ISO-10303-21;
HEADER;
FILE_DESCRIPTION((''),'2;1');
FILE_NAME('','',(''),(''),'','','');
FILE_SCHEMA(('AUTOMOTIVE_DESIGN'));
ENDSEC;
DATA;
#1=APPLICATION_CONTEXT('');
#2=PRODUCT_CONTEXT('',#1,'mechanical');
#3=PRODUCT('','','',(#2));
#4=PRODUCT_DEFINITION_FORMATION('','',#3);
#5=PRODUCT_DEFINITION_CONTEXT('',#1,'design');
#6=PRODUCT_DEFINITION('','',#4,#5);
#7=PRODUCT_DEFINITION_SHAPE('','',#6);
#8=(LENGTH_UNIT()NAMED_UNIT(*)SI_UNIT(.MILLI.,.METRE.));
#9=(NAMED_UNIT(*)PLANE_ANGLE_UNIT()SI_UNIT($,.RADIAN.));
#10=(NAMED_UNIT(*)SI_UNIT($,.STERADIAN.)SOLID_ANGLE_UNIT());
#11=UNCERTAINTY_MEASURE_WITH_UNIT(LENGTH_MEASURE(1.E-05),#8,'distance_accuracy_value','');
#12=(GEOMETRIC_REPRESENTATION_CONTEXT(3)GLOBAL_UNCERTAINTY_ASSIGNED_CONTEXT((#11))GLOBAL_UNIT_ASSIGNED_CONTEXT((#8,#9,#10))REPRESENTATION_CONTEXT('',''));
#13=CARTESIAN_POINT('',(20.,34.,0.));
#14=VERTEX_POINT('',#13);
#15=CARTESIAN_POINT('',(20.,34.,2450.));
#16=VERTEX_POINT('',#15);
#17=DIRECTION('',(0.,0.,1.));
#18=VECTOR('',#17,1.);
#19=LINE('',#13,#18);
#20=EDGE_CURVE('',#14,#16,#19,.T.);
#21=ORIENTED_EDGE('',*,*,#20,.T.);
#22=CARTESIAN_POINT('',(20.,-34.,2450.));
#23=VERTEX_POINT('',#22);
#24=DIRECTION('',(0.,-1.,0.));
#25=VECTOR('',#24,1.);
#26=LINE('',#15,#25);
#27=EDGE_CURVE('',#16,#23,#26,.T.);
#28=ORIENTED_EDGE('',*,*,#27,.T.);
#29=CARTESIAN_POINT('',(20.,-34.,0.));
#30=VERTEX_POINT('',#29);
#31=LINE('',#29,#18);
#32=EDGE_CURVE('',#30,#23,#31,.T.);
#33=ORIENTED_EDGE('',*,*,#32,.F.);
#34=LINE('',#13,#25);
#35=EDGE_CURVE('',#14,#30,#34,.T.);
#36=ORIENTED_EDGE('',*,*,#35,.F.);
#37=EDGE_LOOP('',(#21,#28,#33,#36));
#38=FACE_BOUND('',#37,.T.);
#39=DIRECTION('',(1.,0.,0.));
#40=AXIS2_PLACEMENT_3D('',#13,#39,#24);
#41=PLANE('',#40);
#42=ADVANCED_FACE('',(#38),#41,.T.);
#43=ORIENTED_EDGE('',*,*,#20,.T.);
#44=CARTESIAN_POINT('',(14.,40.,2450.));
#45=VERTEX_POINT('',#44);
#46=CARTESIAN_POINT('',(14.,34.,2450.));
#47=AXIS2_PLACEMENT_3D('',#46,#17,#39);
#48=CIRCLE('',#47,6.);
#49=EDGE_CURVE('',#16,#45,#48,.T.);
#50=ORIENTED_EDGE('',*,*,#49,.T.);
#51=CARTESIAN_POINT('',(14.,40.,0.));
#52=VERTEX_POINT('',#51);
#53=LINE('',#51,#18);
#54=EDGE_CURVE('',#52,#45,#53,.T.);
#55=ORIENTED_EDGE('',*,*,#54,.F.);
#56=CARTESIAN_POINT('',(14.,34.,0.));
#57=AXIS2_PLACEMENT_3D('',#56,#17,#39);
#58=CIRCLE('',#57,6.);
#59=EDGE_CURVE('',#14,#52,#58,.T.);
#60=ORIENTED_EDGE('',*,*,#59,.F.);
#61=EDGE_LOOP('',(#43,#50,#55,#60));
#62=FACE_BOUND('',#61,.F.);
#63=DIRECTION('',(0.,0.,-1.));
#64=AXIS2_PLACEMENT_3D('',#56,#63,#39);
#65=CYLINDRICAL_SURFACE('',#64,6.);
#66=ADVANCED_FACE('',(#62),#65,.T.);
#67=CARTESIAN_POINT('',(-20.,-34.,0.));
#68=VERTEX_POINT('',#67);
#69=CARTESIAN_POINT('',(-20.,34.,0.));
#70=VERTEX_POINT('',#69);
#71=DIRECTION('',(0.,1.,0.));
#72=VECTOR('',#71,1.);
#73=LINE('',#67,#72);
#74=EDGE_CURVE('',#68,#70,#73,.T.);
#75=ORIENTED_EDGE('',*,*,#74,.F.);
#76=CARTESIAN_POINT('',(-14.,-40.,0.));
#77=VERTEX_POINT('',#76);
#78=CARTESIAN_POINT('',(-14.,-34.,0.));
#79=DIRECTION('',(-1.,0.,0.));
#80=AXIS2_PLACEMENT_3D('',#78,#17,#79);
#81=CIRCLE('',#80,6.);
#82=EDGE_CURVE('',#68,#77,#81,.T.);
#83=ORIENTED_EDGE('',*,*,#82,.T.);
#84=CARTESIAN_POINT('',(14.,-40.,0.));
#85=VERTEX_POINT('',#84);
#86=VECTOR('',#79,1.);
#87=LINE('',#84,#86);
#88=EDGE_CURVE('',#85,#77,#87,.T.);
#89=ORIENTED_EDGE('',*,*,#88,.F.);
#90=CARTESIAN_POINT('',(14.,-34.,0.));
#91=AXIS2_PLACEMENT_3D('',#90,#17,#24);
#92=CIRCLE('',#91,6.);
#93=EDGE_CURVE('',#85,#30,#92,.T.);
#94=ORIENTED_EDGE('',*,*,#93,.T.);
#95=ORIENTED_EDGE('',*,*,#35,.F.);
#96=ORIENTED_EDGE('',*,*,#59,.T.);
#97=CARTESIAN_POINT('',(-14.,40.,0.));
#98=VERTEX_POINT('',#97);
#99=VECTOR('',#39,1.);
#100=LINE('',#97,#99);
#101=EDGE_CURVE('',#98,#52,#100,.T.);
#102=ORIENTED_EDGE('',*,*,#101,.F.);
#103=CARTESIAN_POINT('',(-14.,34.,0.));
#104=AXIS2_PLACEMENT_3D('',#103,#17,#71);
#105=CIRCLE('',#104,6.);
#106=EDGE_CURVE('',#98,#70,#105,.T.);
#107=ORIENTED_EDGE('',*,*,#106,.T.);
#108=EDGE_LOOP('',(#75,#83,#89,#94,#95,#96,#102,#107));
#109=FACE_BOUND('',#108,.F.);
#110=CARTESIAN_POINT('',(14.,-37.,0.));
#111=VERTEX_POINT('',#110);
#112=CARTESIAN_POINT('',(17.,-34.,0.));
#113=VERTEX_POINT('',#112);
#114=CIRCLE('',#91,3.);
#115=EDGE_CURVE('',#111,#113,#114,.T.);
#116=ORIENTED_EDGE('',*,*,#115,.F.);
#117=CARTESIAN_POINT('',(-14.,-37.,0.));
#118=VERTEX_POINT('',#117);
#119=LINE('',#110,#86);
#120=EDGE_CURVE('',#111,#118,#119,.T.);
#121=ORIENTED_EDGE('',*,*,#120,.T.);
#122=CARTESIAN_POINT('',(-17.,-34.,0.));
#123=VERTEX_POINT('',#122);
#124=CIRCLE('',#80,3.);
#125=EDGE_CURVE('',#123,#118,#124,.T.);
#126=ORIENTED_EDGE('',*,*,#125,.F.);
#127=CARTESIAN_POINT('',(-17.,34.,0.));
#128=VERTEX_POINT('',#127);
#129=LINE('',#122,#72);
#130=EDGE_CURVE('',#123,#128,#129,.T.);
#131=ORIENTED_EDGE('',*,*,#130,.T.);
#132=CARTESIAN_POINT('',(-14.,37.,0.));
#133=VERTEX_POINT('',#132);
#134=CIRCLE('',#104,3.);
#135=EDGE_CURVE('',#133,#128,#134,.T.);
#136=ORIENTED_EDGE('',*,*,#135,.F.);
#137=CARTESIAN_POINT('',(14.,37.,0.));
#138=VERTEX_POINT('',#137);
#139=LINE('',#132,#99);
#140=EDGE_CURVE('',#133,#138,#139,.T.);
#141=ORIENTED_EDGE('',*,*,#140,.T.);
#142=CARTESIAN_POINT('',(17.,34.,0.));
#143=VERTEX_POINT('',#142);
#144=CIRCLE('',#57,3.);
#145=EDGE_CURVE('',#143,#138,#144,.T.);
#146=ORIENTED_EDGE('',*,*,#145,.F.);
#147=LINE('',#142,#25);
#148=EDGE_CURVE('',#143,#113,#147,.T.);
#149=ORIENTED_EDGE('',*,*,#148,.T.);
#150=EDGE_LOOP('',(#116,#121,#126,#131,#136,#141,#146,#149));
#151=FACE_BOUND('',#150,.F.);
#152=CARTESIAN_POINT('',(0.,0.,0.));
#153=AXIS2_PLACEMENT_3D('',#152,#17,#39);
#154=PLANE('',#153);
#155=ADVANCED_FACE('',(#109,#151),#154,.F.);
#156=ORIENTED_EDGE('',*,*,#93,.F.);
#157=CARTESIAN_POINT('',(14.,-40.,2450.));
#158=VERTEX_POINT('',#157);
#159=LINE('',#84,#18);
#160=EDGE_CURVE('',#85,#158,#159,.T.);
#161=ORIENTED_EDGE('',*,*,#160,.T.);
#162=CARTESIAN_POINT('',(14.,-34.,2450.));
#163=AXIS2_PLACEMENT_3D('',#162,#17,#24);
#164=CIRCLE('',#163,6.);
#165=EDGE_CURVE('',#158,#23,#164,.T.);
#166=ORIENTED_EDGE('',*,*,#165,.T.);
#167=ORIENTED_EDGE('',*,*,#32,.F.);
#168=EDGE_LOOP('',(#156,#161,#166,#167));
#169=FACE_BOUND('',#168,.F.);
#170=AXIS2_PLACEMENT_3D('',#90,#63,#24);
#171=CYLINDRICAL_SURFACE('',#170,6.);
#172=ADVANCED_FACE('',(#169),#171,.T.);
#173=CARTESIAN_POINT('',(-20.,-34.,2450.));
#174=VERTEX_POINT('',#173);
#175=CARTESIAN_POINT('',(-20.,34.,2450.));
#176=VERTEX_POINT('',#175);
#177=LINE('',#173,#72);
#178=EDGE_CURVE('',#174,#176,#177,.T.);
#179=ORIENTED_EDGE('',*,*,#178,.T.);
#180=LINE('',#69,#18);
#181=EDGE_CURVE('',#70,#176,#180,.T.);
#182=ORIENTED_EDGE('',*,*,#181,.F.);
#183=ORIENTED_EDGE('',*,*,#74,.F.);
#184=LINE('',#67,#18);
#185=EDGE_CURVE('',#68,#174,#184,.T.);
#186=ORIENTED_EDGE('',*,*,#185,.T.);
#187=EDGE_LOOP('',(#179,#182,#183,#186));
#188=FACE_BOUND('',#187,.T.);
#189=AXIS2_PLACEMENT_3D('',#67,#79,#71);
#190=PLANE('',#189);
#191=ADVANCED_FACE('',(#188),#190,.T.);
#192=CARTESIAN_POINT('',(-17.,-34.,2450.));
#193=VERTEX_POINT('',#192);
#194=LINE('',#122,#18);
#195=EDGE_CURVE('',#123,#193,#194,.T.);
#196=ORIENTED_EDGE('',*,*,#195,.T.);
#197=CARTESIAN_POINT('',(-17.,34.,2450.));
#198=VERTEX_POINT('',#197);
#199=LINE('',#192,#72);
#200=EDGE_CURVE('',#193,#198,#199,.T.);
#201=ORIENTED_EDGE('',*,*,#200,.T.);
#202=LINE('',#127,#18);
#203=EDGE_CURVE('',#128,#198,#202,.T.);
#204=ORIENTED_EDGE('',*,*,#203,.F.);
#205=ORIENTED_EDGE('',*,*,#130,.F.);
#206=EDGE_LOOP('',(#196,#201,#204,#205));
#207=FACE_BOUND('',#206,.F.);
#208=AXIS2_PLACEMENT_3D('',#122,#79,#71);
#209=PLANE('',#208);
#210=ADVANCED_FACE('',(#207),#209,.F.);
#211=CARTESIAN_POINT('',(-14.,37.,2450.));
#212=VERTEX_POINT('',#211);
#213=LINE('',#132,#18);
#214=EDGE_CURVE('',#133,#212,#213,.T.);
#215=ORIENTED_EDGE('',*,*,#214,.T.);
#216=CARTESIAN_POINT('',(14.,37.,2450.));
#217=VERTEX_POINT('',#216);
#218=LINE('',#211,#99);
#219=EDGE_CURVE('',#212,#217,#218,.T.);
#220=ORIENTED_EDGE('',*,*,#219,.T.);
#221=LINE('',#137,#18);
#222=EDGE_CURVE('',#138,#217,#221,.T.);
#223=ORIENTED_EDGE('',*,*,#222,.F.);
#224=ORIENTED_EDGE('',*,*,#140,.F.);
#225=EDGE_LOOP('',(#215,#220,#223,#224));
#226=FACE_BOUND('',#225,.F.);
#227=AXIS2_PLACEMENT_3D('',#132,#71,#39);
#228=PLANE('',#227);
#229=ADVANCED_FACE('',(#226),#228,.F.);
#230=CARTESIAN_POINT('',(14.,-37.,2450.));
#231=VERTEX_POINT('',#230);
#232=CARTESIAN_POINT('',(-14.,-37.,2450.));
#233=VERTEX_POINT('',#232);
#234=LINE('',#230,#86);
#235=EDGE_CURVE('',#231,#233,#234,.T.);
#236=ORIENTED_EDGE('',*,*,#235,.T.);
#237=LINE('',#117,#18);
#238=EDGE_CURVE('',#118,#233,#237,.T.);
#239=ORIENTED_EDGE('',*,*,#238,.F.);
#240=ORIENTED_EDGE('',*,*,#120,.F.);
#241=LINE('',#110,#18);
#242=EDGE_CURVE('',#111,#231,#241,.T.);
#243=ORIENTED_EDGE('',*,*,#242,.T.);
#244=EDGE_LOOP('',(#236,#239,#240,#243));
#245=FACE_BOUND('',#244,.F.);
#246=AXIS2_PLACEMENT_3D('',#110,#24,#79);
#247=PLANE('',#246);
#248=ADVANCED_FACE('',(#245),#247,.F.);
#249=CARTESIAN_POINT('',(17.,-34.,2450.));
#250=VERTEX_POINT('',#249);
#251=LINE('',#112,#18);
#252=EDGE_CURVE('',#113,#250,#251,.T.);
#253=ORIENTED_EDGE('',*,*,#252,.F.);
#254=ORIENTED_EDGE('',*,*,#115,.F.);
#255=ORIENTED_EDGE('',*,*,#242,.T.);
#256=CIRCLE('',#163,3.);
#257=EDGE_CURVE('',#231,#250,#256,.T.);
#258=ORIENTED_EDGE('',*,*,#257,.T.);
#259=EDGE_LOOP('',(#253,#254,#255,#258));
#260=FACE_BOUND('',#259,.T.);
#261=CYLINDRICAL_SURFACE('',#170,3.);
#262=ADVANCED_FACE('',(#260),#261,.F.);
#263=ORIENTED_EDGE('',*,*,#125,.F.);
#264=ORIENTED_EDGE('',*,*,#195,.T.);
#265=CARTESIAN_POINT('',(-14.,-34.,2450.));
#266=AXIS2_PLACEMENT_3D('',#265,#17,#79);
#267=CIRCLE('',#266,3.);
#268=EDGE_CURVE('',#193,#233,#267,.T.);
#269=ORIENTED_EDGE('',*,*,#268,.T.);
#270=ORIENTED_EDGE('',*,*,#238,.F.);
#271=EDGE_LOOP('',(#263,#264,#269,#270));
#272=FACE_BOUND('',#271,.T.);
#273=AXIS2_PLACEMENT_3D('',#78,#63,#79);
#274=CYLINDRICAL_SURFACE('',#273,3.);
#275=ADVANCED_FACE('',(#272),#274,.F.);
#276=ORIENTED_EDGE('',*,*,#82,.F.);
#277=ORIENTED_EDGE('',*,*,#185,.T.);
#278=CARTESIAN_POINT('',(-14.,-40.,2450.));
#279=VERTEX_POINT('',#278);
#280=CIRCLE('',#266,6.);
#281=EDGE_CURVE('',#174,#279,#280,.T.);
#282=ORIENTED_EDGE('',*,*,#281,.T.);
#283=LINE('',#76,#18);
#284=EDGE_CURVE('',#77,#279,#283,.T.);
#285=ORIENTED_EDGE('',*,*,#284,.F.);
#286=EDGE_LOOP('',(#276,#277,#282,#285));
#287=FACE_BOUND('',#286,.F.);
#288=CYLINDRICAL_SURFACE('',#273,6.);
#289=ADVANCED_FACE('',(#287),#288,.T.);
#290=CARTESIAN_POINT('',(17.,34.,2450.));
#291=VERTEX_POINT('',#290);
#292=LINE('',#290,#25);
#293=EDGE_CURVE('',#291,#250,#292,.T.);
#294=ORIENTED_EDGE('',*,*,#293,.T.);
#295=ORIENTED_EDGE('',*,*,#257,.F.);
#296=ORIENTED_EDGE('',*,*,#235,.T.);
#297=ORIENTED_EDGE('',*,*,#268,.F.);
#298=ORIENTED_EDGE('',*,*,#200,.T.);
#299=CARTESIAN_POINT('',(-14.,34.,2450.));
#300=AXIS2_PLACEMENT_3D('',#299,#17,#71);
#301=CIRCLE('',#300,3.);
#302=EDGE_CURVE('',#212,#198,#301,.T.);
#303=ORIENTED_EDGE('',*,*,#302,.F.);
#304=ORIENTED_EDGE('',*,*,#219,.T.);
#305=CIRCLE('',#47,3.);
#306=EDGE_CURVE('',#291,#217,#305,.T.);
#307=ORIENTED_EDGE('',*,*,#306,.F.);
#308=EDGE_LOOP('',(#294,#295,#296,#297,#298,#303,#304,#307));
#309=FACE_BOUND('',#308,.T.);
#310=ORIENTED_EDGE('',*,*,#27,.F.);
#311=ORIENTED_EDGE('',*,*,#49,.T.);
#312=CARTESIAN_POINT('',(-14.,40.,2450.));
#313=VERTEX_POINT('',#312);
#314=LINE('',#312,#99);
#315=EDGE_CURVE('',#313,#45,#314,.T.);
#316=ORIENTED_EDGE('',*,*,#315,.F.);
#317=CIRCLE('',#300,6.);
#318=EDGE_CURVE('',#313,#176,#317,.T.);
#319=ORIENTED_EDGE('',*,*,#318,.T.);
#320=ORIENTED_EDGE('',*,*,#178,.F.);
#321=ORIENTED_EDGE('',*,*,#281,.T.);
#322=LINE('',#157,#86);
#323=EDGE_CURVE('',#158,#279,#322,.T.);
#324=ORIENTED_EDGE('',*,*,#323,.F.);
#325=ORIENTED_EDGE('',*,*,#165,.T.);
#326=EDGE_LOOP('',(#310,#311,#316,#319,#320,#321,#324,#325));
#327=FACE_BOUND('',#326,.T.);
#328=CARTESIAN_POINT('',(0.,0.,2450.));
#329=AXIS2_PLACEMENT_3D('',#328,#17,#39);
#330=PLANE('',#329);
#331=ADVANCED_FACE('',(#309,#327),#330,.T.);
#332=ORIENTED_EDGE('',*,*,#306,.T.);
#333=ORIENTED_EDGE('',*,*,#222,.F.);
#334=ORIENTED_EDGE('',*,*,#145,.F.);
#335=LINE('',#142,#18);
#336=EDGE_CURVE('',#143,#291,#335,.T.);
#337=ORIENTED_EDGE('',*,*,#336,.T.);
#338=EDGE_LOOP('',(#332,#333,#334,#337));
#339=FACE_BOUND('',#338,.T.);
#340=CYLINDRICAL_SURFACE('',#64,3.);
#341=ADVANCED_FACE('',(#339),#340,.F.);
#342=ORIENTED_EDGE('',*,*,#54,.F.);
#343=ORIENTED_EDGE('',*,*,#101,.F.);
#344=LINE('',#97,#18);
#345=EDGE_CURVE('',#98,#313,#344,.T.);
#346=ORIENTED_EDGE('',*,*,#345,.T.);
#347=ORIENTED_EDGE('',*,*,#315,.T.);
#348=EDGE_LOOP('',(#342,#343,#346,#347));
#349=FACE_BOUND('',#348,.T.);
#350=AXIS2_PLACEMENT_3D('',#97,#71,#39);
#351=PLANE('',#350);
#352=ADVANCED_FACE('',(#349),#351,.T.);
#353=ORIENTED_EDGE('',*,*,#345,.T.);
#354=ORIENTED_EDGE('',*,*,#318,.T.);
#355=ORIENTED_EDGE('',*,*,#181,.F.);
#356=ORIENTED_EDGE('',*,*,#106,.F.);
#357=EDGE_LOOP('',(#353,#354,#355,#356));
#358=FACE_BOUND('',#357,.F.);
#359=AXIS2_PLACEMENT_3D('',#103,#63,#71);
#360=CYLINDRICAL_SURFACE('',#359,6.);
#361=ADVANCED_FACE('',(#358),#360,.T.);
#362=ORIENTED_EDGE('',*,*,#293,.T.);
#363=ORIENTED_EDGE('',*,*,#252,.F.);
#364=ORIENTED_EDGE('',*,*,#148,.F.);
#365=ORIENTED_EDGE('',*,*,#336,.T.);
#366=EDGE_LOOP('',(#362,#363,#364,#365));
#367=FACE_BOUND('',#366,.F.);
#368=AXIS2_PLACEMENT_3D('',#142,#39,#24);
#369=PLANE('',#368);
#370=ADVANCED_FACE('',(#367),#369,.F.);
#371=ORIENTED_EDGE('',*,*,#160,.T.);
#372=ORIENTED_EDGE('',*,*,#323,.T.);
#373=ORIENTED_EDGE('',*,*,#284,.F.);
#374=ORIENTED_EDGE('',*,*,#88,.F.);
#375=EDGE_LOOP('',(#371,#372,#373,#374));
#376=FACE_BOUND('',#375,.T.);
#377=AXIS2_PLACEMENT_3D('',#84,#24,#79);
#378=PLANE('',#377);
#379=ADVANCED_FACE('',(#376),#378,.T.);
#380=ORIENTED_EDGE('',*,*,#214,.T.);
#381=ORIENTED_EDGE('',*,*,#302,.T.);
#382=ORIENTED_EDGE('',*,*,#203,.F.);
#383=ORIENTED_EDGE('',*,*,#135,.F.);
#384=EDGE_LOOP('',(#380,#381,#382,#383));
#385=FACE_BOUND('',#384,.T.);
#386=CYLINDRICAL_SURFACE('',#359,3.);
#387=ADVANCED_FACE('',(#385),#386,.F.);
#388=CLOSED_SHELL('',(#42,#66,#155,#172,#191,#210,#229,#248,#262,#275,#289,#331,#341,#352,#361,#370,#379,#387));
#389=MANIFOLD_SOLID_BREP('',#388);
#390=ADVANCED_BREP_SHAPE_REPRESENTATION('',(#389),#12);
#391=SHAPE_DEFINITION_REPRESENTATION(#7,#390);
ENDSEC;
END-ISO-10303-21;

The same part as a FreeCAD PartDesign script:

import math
import FreeCAD as App
import Part
import Sketcher
from FreeCAD import Vector

doc = App.newDocument("Part")
body = doc.addObject("PartDesign::Body", "Body")

# Sketch on XY plane
sketch1 = body.newObject("Sketcher::SketchObject", "Sketch")
sketch1.AttachmentSupport = (doc.getObject("XY_Plane"), [""])
sketch1.MapMode = "FlatFace"
sketch1.addGeometry([
    Part.LineSegment(Vector(-20, 34, 0), Vector(-20, -34, 0)),  # 0
    Part.ArcOfCircle(Part.Circle(Vector(-14, -34, 0), Vector(0, 0, 1), 6), math.radians(180), math.radians(270)),  # 1
    Part.LineSegment(Vector(-14, -40, 0), Vector(14, -40, 0)),  # 2
    Part.ArcOfCircle(Part.Circle(Vector(14, -34, 0), Vector(0, 0, 1), 6), math.radians(-90), math.radians(0)),  # 3
    Part.LineSegment(Vector(20, -34, 0), Vector(20, 34, 0)),  # 4
    Part.ArcOfCircle(Part.Circle(Vector(14, 34, 0), Vector(0, 0, 1), 6), math.radians(0), math.radians(90)),  # 5
    Part.LineSegment(Vector(14, 40, 0), Vector(-14, 40, 0)),  # 6
    Part.ArcOfCircle(Part.Circle(Vector(-14, 34, 0), Vector(0, 0, 1), 6), math.radians(90), math.radians(180)),  # 7
    Part.ArcOfCircle(Part.Circle(Vector(-14, 34, 0), Vector(0, 0, 1), 3), math.radians(90), math.radians(180)),  # 8
    Part.LineSegment(Vector(-14, 37, 0), Vector(14, 37, 0)),  # 9
    Part.ArcOfCircle(Part.Circle(Vector(14, 34, 0), Vector(0, 0, 1), 3), math.radians(0), math.radians(90)),  # 10
    Part.LineSegment(Vector(17, 34, 0), Vector(17, -34, 0)),  # 11
    Part.ArcOfCircle(Part.Circle(Vector(14, -34, 0), Vector(0, 0, 1), 3), math.radians(-90), math.radians(0)),  # 12
    Part.LineSegment(Vector(14, -37, 0), Vector(-14, -37, 0)),  # 13
    Part.ArcOfCircle(Part.Circle(Vector(-14, -34, 0), Vector(0, 0, 1), 3), math.radians(180), math.radians(270)),  # 14
    Part.LineSegment(Vector(-17, -34, 0), Vector(-17, 34, 0)),  # 15
], False)
sketch1.addConstraint([
    Sketcher.Constraint("Tangent", 0, 2, 1, 1),
    Sketcher.Constraint("Tangent", 1, 2, 2, 1),
    Sketcher.Constraint("Tangent", 2, 2, 3, 1),
    Sketcher.Constraint("Tangent", 3, 2, 4, 1),
    Sketcher.Constraint("Tangent", 4, 2, 5, 1),
    Sketcher.Constraint("Tangent", 5, 2, 6, 1),
    Sketcher.Constraint("Tangent", 6, 2, 7, 1),
    Sketcher.Constraint("Tangent", 7, 2, 0, 1),
    Sketcher.Constraint("Tangent", 8, 1, 9, 1),
    Sketcher.Constraint("Tangent", 9, 2, 10, 2),
    Sketcher.Constraint("Tangent", 10, 1, 11, 1),
    Sketcher.Constraint("Tangent", 11, 2, 12, 2),
    Sketcher.Constraint("Tangent", 12, 1, 13, 1),
    Sketcher.Constraint("Tangent", 13, 2, 14, 2),
    Sketcher.Constraint("Tangent", 14, 1, 15, 1),
    Sketcher.Constraint("Tangent", 15, 2, 8, 2),
    Sketcher.Constraint("Vertical", 0),
    Sketcher.Constraint("Horizontal", 2),
    Sketcher.Constraint("Vertical", 4),
    Sketcher.Constraint("Horizontal", 6),
    Sketcher.Constraint("Horizontal", 9),
    Sketcher.Constraint("Vertical", 11),
    Sketcher.Constraint("Horizontal", 13),
    Sketcher.Constraint("Vertical", 15),
    Sketcher.Constraint("Coincident", 8, 3, 7, 3),
    Sketcher.Constraint("Coincident", 10, 3, 5, 3),
    Sketcher.Constraint("Coincident", 12, 3, 3, 3),
    Sketcher.Constraint("Equal", 1, 3),
    Sketcher.Constraint("Equal", 3, 5),
    Sketcher.Constraint("Equal", 5, 7),
    Sketcher.Constraint("Equal", 12, 14),
    Sketcher.Constraint("Symmetric", 1, 3, 5, 3, -1, 1),
    Sketcher.Constraint("Radius", 1, 6.0),
    Sketcher.Constraint("Radius", 8, 3.0),
    Sketcher.Constraint("DistanceX", 0, 2, -1, 1, 20.0),
    Sketcher.Constraint("DistanceY", 1, 2, -1, 1, 40.0),
])
pad1 = body.newObject("PartDesign::Pad", "Pad")
pad1.Profile = sketch1
pad1.Length = 2450

doc.recompute()
